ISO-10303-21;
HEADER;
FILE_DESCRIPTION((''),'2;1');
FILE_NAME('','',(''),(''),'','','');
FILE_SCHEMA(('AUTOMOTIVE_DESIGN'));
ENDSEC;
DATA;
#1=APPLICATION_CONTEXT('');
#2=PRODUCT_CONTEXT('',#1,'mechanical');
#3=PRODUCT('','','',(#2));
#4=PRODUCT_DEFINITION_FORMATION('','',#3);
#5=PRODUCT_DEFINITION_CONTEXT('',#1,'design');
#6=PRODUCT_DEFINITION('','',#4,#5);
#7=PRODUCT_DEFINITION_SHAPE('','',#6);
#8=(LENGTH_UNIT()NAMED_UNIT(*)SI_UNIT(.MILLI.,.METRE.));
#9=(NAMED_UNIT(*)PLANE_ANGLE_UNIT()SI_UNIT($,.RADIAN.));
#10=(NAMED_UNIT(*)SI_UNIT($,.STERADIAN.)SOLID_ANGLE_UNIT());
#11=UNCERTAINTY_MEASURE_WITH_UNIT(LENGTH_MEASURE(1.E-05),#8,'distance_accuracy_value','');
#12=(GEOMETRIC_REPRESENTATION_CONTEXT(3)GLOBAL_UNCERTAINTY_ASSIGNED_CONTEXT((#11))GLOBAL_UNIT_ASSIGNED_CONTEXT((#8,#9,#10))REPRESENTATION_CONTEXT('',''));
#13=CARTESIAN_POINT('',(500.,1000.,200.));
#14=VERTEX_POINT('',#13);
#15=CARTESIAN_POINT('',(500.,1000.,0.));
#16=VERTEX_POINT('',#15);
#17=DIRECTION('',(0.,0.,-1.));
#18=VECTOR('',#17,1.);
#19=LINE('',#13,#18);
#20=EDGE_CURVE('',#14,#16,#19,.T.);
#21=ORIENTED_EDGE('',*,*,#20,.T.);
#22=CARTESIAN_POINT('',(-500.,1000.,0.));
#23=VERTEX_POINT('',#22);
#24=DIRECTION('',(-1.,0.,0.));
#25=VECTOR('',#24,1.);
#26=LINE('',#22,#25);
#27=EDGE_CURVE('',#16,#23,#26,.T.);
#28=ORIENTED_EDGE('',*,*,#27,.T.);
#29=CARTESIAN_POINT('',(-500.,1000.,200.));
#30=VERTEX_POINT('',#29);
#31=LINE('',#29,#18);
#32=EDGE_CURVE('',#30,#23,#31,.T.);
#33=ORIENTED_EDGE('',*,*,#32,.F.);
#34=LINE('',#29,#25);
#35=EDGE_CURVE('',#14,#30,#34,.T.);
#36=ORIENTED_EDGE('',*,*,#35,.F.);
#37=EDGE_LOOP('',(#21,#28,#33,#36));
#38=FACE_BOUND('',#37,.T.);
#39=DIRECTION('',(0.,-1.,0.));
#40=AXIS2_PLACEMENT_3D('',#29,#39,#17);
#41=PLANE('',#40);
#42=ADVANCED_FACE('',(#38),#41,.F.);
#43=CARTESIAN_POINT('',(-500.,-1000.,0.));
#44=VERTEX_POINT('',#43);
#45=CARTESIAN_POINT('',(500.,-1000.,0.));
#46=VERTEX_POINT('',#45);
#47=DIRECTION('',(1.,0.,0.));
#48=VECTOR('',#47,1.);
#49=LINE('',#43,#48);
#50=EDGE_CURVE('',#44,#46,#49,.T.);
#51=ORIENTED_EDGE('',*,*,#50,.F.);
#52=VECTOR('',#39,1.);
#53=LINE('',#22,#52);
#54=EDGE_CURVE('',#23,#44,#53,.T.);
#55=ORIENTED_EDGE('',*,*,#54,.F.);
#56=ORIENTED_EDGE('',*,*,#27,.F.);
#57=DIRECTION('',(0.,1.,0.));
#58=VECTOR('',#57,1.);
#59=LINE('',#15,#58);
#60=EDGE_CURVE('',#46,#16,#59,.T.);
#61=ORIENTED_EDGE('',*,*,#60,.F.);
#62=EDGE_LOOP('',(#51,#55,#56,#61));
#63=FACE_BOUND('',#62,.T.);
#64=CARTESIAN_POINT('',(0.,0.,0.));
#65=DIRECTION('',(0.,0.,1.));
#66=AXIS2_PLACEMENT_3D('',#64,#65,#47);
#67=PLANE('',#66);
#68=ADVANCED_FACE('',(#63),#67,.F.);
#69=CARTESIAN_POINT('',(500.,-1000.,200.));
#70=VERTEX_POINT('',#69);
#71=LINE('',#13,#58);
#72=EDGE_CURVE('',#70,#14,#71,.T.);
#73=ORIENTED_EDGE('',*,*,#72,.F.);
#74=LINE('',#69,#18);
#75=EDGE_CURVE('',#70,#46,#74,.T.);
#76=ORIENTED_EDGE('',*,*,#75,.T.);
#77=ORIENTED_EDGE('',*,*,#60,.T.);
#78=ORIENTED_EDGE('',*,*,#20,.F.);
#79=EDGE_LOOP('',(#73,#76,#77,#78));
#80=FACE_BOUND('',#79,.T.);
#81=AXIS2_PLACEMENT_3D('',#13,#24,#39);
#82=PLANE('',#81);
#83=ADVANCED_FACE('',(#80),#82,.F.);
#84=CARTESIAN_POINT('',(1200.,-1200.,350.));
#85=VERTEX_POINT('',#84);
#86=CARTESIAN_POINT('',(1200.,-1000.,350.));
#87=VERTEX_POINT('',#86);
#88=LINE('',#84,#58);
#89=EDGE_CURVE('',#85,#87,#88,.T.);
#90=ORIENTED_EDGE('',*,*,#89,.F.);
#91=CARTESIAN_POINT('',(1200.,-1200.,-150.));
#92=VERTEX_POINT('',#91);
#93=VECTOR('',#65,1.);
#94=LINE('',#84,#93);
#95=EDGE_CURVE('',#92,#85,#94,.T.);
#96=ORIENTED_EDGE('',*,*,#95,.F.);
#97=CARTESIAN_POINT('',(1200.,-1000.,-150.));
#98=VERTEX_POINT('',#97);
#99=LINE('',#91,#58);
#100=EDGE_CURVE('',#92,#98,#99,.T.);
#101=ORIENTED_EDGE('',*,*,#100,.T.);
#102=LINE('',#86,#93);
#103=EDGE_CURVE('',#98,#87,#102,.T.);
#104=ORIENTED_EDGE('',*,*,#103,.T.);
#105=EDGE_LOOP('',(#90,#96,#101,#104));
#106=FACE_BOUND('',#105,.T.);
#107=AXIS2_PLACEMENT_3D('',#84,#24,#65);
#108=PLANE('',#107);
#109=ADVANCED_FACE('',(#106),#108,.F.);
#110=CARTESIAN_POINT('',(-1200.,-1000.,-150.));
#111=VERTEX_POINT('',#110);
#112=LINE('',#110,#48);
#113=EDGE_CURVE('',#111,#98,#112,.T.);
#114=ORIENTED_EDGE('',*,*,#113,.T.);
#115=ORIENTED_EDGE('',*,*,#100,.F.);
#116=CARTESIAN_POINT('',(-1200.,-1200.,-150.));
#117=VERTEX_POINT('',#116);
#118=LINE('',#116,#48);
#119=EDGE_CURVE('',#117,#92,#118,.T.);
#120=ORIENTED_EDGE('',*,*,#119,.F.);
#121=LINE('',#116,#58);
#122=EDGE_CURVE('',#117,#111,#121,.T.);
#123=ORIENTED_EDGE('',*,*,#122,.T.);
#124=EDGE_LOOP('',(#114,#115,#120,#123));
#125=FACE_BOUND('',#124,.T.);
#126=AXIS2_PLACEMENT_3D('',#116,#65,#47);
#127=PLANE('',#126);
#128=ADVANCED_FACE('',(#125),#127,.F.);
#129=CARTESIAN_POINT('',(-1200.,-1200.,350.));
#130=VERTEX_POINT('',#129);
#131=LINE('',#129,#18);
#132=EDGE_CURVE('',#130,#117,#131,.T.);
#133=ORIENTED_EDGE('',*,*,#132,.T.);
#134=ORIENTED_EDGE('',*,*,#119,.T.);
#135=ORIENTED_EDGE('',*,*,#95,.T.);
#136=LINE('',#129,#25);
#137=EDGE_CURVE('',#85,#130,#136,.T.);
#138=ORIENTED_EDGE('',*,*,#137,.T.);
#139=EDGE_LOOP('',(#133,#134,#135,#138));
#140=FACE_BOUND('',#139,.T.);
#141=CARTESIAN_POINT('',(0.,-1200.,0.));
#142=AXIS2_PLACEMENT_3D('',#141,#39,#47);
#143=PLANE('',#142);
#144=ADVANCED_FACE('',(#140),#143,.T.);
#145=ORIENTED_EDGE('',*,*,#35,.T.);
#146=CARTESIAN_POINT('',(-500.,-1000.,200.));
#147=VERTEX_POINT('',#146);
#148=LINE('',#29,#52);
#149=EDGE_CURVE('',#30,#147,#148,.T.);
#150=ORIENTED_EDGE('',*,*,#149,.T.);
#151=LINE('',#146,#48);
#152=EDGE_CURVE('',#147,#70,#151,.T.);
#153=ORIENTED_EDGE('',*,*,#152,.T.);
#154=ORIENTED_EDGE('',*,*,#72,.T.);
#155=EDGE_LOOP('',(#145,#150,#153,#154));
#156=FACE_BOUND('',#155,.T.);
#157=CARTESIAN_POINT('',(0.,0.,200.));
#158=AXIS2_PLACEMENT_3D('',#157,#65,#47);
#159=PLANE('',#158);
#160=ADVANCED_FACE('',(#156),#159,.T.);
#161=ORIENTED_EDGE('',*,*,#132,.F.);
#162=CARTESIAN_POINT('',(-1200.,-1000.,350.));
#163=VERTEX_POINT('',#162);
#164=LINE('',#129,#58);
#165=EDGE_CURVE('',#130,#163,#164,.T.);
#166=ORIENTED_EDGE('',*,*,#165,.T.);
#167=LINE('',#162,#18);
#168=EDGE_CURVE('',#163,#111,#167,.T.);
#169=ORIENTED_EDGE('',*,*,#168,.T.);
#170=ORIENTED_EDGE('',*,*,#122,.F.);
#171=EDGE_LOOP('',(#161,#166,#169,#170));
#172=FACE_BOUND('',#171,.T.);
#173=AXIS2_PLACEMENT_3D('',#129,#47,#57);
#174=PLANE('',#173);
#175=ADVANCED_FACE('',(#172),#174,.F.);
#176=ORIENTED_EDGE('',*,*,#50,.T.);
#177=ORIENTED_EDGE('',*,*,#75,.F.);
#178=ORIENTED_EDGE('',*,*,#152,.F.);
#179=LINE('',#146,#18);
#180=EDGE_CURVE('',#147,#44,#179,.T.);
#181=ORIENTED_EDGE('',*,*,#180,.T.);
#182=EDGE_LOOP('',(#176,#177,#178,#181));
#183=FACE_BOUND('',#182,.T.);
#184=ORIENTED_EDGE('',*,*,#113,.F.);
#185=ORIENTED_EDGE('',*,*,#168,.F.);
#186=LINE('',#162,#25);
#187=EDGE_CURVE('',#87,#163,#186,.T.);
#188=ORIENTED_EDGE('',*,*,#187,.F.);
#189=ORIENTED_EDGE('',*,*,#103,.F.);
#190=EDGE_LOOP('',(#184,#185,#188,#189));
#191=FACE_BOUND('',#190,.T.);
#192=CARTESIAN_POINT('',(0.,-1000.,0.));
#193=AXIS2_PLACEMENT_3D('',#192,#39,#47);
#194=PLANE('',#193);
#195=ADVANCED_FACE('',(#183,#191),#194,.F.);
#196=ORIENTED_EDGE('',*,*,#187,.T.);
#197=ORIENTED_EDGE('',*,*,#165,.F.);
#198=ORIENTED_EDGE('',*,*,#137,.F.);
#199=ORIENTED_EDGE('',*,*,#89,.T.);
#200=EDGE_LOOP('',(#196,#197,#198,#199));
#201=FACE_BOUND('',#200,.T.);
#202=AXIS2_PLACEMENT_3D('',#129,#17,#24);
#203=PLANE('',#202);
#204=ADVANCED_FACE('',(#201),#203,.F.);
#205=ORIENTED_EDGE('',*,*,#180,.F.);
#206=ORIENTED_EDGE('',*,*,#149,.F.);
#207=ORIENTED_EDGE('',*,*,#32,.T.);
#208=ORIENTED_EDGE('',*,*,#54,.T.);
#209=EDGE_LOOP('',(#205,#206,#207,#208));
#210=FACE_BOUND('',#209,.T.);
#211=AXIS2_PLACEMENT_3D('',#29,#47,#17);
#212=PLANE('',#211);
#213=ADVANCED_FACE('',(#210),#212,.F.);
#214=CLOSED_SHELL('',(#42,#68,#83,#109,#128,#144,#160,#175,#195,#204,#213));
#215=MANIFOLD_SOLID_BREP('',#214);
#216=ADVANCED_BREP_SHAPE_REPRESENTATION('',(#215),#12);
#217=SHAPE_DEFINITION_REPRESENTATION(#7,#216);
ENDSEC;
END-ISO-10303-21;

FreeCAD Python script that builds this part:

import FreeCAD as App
import Part
import Sketcher
from FreeCAD import Vector


def add_polygon(sketch, points):
    """Adds a closed chain of lines whose ends are joined by coincident constraints."""
    first, n = sketch.GeometryCount, len(points)
    for a, b in zip(points, points[1:] + points[:1]):
        sketch.addGeometry(Part.LineSegment(App.Vector(*a, 0), App.Vector(*b, 0)), False)
    for i in range(n):
        sketch.addConstraint(Sketcher.Constraint("Coincident", first + i, 2, first + (i + 1) % n, 1))

doc = App.newDocument("Part")
params = doc.addObject("Spreadsheet::Sheet", "Params")
for row, (alias, value) in enumerate([
    ("sketch1_width", "1000 mm"),
    ("sketch1_height", "2000 mm"),
    ("pad1_length", "200 mm"),
    ("sketch2_width", "2400 mm"),
    ("sketch2_height", "500 mm"),
    ("pad2_length", "200 mm"),
], start=1):
    params.set(f"A{row}", alias)
    params.set(f"B{row}", "=" + value)
    params.setAlias(f"B{row}", alias)

body = doc.addObject("PartDesign::Body", "Body")

# Sketch on XY plane
sketch1 = body.newObject("Sketcher::SketchObject", "Sketch")
sketch1.AttachmentSupport = (doc.getObject("XY_Plane"), [""])
sketch1.MapMode = "FlatFace"
add_polygon(sketch1, [(-500, 1000), (-500, -1000), (500, -1000), (500, 1000)])  # lines 0-3
sketch1.addConstraint(Sketcher.Constraint("Vertical", 0))
sketch1.addConstraint(Sketcher.Constraint("Horizontal", 1))
sketch1.addConstraint(Sketcher.Constraint("Vertical", 2))
sketch1.addConstraint(Sketcher.Constraint("Horizontal", 3))
sketch1.addConstraint(Sketcher.Constraint("Symmetric", 0, 2, 2, 2, -1, 1))
sketch1.addConstraint(Sketcher.Constraint("DistanceX", 1, 1, 1, 2, 1000.0))
sketch1.addConstraint(Sketcher.Constraint("DistanceY", 0, 2, 0, 1, 2000.0))
sketch1.setExpression("Constraints[9]", "Params.sketch1_width")
sketch1.setExpression("Constraints[10]", "Params.sketch1_height")
pad1 = body.newObject("PartDesign::Pad", "Pad")
pad1.Profile = sketch1
pad1.setExpression("Length", "Params.pad1_length")

# Sketch on XZ plane
sketch2 = body.newObject("Sketcher::SketchObject", "Sketch001")
sketch2.AttachmentSupport = (doc.getObject("XZ_Plane"), [""])
sketch2.MapMode = "FlatFace"
sketch2.AttachmentOffset = App.Placement(Vector(0, 0, 1000), App.Rotation())
add_polygon(sketch2, [(-1200, 350), (-1200, -150), (1200, -150), (1200, 350)])  # lines 0-3
sketch2.addConstraint(Sketcher.Constraint("Vertical", 0))
sketch2.addConstraint(Sketcher.Constraint("Horizontal", 1))
sketch2.addConstraint(Sketcher.Constraint("Vertical", 2))
sketch2.addConstraint(Sketcher.Constraint("Horizontal", 3))
sketch2.addConstraint(Sketcher.Constraint("DistanceX", 1, 1, 1, 2, 2400.0))
sketch2.addConstraint(Sketcher.Constraint("DistanceY", 0, 2, 0, 1, 500.0))
sketch2.addConstraint(Sketcher.Constraint("DistanceX", 0, 2, -1, 1, 1200.0))
sketch2.addConstraint(Sketcher.Constraint("DistanceY", 0, 2, -1, 1, 150.0))
sketch2.setExpression("Constraints[8]", "Params.sketch2_width")
sketch2.setExpression("Constraints[9]", "Params.sketch2_height")
pad2 = body.newObject("PartDesign::Pad", "Pad001")
pad2.Profile = sketch2
pad2.setExpression("Length", "Params.pad2_length")

doc.recompute()
